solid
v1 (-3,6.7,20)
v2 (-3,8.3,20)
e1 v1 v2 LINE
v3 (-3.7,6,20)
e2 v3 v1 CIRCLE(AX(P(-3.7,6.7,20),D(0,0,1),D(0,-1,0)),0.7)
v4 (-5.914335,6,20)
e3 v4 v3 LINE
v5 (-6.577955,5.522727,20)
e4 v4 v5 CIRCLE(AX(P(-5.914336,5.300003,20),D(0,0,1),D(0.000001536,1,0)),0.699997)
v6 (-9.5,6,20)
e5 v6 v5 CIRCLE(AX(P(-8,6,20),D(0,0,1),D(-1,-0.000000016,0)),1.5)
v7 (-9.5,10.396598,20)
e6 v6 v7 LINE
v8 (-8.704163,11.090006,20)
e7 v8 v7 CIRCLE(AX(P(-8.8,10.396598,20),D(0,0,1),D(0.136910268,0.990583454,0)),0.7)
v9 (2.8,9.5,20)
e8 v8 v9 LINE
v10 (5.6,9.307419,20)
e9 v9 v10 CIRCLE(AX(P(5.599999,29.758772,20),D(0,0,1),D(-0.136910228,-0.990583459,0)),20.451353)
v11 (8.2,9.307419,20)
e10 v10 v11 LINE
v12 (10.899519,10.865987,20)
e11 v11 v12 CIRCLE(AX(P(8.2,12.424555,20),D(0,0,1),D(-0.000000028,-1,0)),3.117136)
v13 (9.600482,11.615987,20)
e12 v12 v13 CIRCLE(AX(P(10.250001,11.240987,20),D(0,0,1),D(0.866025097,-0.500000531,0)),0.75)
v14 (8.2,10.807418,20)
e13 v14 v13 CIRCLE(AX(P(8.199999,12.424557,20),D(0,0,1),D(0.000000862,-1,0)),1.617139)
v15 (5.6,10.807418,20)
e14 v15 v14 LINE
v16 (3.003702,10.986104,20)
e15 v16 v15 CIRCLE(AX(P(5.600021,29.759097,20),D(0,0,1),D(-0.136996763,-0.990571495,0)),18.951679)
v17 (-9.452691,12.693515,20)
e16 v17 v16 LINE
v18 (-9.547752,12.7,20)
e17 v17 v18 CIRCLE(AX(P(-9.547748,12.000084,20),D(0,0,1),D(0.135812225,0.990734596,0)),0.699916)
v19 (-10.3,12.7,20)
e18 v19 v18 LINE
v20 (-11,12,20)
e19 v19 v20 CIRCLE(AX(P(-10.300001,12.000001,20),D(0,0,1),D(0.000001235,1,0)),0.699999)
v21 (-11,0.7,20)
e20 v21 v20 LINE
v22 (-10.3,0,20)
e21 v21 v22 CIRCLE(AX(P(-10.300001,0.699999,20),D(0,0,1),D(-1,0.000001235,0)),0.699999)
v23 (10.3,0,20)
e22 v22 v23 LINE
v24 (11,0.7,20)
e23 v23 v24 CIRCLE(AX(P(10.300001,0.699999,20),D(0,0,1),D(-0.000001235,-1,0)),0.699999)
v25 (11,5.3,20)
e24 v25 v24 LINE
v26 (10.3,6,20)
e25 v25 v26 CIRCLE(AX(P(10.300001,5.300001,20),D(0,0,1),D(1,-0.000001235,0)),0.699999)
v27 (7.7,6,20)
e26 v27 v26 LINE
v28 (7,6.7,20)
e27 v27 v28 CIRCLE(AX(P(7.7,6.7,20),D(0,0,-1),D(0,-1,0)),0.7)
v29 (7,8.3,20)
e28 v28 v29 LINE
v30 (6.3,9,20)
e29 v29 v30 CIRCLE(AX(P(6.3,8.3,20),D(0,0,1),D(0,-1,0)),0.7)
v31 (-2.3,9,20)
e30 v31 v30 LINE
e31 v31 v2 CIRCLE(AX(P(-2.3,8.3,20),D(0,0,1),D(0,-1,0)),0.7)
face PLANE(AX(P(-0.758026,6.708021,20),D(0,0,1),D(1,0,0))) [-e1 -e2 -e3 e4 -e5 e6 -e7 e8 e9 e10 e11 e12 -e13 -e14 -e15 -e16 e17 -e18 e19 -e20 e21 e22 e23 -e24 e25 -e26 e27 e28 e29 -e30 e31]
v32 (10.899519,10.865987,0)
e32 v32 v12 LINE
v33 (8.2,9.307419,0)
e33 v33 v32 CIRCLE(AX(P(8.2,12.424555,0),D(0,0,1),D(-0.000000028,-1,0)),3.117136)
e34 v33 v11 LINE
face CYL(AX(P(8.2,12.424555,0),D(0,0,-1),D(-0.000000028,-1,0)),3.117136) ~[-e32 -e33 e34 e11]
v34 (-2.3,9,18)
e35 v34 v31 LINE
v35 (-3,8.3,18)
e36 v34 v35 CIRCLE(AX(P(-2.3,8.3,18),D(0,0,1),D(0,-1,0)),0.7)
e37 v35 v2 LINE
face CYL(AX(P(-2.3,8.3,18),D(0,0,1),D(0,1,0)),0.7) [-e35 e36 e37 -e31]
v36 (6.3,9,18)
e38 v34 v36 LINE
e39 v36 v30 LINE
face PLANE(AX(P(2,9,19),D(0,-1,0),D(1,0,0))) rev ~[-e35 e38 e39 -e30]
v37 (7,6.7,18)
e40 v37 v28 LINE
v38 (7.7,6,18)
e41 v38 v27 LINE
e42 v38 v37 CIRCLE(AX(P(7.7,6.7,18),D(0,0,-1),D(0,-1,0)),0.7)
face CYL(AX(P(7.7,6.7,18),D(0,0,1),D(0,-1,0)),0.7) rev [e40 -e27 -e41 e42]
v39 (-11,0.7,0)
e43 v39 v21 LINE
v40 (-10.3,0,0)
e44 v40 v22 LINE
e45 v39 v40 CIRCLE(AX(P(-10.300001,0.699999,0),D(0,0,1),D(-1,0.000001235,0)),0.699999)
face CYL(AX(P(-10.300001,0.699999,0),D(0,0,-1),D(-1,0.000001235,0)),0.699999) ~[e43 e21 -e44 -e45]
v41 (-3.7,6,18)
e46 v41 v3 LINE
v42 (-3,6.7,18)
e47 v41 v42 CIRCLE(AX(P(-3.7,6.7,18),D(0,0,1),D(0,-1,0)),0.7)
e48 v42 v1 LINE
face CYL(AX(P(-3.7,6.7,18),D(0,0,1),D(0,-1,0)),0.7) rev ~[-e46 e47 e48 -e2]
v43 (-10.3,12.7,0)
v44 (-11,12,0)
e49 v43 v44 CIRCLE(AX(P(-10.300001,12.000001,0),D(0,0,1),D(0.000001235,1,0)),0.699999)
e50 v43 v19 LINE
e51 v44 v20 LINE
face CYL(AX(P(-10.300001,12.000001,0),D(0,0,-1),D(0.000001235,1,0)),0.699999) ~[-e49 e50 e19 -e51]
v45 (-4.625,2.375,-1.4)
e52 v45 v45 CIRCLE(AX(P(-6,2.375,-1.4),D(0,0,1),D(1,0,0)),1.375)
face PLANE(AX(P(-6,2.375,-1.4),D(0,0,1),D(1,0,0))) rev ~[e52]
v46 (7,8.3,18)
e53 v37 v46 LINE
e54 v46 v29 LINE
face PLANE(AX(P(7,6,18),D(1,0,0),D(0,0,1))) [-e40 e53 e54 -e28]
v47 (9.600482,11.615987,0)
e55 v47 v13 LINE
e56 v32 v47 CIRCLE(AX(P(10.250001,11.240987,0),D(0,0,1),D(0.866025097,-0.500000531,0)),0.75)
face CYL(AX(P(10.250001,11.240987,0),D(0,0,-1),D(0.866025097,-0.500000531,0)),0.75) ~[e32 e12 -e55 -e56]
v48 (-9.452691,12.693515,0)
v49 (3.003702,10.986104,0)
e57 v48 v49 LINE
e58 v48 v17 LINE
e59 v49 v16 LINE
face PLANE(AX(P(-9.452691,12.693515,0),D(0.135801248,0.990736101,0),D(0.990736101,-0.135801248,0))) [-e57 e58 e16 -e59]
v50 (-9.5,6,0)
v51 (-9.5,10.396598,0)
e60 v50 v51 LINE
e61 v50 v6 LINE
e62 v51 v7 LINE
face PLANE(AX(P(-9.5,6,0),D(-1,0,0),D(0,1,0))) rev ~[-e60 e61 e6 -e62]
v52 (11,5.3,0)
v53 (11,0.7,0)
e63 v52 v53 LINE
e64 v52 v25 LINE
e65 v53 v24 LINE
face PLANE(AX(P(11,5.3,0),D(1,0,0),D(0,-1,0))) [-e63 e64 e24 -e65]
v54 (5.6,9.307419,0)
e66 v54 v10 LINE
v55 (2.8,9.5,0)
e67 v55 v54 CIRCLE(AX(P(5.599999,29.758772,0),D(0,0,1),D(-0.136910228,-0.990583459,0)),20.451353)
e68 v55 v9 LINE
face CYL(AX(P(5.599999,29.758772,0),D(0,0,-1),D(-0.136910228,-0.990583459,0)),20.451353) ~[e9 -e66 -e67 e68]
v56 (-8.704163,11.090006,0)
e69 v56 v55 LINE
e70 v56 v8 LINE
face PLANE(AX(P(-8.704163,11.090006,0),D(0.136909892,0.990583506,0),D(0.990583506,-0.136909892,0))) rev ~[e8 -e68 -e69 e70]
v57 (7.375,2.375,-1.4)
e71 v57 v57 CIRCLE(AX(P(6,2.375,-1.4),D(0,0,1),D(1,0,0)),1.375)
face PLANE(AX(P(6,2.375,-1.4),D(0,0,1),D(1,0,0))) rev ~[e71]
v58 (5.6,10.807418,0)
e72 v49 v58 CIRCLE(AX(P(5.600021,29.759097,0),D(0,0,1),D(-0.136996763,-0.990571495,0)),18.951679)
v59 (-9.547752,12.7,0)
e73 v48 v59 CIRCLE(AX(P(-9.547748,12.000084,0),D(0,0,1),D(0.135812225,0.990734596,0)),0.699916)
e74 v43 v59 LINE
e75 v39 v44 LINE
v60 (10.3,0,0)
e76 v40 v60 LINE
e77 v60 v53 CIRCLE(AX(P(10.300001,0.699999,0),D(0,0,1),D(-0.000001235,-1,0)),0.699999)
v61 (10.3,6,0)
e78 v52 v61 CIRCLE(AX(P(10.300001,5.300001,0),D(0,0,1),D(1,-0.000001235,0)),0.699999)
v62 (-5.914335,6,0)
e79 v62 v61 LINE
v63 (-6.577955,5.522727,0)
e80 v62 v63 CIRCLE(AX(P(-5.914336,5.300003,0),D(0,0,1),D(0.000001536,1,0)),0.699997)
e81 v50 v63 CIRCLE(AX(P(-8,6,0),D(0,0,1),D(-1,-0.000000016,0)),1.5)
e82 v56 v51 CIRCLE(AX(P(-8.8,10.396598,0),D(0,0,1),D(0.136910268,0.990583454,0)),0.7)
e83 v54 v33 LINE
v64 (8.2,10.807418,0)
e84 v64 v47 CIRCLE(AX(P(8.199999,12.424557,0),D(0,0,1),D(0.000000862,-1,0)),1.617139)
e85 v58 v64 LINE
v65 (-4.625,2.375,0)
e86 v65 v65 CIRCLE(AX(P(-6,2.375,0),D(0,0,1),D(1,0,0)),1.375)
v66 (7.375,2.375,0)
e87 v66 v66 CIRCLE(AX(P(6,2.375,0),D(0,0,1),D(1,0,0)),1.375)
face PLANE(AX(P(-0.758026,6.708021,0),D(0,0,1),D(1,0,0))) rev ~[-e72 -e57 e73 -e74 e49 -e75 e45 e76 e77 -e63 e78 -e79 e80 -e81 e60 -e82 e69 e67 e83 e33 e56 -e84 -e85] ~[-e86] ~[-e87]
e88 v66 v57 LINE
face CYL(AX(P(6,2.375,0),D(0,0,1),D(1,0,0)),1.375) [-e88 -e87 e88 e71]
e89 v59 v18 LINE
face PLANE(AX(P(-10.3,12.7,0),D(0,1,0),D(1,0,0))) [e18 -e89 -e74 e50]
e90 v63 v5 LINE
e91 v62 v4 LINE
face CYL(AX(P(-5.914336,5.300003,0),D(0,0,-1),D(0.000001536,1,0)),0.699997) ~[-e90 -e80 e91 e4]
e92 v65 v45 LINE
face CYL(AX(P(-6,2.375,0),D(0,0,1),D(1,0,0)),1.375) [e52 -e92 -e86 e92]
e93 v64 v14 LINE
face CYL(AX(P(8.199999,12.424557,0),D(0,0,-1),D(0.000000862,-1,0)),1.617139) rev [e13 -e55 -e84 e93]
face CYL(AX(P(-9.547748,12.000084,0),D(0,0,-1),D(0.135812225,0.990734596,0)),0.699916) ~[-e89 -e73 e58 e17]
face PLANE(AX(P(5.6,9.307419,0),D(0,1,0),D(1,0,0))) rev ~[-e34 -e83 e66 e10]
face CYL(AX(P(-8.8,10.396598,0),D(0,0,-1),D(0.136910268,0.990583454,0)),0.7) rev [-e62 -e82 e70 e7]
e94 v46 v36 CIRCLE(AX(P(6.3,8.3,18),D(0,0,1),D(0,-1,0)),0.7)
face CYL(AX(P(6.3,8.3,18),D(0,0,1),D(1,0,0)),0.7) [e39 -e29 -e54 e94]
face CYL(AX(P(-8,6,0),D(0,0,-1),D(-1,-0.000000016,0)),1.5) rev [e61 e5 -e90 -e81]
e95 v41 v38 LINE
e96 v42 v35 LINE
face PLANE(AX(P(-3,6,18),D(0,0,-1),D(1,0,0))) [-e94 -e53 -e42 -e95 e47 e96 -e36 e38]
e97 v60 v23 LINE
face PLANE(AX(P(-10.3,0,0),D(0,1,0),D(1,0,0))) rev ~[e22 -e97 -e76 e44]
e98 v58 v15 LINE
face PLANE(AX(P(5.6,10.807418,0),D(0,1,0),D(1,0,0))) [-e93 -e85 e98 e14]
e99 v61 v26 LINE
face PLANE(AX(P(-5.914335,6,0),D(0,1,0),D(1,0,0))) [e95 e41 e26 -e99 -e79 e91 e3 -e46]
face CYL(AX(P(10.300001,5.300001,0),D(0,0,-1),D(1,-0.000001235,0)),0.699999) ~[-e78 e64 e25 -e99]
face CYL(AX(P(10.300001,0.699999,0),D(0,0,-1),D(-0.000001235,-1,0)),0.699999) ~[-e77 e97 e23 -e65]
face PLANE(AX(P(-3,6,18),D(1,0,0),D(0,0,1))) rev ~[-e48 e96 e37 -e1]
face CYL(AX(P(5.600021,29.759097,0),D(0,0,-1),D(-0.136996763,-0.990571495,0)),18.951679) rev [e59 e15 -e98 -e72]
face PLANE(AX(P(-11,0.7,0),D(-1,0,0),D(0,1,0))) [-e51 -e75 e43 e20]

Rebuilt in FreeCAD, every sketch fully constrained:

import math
import FreeCAD as App
import Part
import Sketcher
from FreeCAD import Vector


def edges_at(feature, points):
    """Names of the edges that pass closest to the given points."""
    edges = feature.Shape.Edges
    near = lambda p: min(range(len(edges)), key=lambda i: edges[i].distToShape(Part.Vertex(*p))[0])
    return sorted({f"Edge{near(p) + 1}" for p in points})

doc = App.newDocument("Part")
body = doc.addObject("PartDesign::Body", "Body")

sketch1 = body.newObject("Sketcher::SketchObject", "Sketch")
sketch1.AttachmentSupport = (doc.getObject("XY_Plane"), [""])
sketch1.MapMode = "FlatFace"
sketch1.addGeometry(Part.LineSegment(Vector(-10.3, 0, 0), Vector(10.3, 0, 0)), False)
sketch1.addGeometry(Part.ArcOfCircle(Part.Circle(Vector(10.300001, 0.699999, 0), Vector(0, 0, 1), 0.699999), math.radians(-90.000071), math.radians(0.000071)), False)
sketch1.addGeometry(Part.LineSegment(Vector(11, 0.7, 0), Vector(11, 5.3, 0)), False)
sketch1.addGeometry(Part.ArcOfCircle(Part.Circle(Vector(10.300001, 5.300001, 0), Vector(0, 0, 1), 0.699999), math.radians(-0.000071), math.radians(90.000071)), False)
sketch1.addGeometry(Part.LineSegment(Vector(10.3, 6, 0), Vector(-5.914335, 6, 0)), False)
sketch1.addGeometry(Part.ArcOfCircle(Part.Circle(Vector(-5.914336, 5.300003, 0), Vector(0, 0, 1), 0.699997), math.radians(89.999912), math.radians(161.44718)), False)
sketch1.addGeometry(Part.ArcOfCircle(Part.Circle(Vector(-8, 6, 0), Vector(0, 0, 1), 1.5), math.radians(-179.999999), math.radians(-18.553013)), False)
sketch1.addGeometry(Part.LineSegment(Vector(-9.5, 6, 0), Vector(-9.5, 10.396598, 0)), False)
sketch1.addGeometry(Part.ArcOfCircle(Part.Circle(Vector(-8.8, 10.396598, 0), Vector(0, 0, 1), 0.7), math.radians(82.130904), math.radians(179.999979)), False)
sketch1.addGeometry(Part.LineSegment(Vector(-8.704163, 11.090006, 0), Vector(2.8, 9.5, 0)), False)
sketch1.addGeometry(Part.ArcOfCircle(Part.Circle(Vector(5.599999, 29.758772, 0), Vector(0, 0, 1), 20.451353), math.radians(-97.869094), math.radians(-89.999998)), False)
sketch1.addGeometry(Part.LineSegment(Vector(5.6, 9.307419, 0), Vector(8.2, 9.307419, 0)), False)
sketch1.addGeometry(Part.ArcOfCircle(Part.Circle(Vector(8.2, 12.424555, 0), Vector(0, 0, 1), 3.117136), math.radians(-90.000002), math.radians(-29.999999)), False)
sketch1.addGeometry(Part.ArcOfCircle(Part.Circle(Vector(10.250001, 11.240987, 0), Vector(0, 0, 1), 0.75), math.radians(-30.000035), math.radians(149.999993)), False)
sketch1.addGeometry(Part.ArcOfCircle(Part.Circle(Vector(8.199999, 12.424557, 0), Vector(0, 0, 1), 1.617139), math.radians(-89.999951), math.radians(-30.000029)), False)
sketch1.addGeometry(Part.LineSegment(Vector(8.2, 10.807418, 0), Vector(5.6, 10.807418, 0)), False)
sketch1.addGeometry(Part.ArcOfCircle(Part.Circle(Vector(5.600021, 29.759097, 0), Vector(0, 0, 1), 18.951679), math.radians(-97.874099), math.radians(-90.000063)), False)
sketch1.addGeometry(Part.LineSegment(Vector(3.003702, 10.986104, 0), Vector(-9.452691, 12.693515, 0)), False)
sketch1.addGeometry(Part.ArcOfCircle(Part.Circle(Vector(-9.547748, 12.000084, 0), Vector(0, 0, 1), 0.699916), math.radians(82.19441), math.radians(90.000321)), False)
sketch1.addGeometry(Part.LineSegment(Vector(-9.547752, 12.7, 0), Vector(-10.3, 12.7, 0)), False)
sketch1.addGeometry(Part.ArcOfCircle(Part.Circle(Vector(-10.300001, 12.000001, 0), Vector(0, 0, 1), 0.699999), math.radians(89.999929), math.radians(180.000071)), False)
sketch1.addGeometry(Part.LineSegment(Vector(-11, 12, 0), Vector(-11, 0.7, 0)), False)
sketch1.addGeometry(Part.ArcOfCircle(Part.Circle(Vector(-10.300001, 0.699999, 0), Vector(0, 0, 1), 0.699999), math.radians(179.999929), math.radians(270.000071)), False)
sketch1.addConstraint(Sketcher.Constraint("Coincident", 0, 2, 1, 1))
sketch1.addConstraint(Sketcher.Constraint("Coincident", 1, 2, 2, 1))
sketch1.addConstraint(Sketcher.Constraint("Coincident", 2, 2, 3, 1))
sketch1.addConstraint(Sketcher.Constraint("Coincident", 3, 2, 4, 1))
sketch1.addConstraint(Sketcher.Constraint("Coincident", 4, 2, 5, 1))
sketch1.addConstraint(Sketcher.Constraint("Coincident", 5, 2, 6, 2))
sketch1.addConstraint(Sketcher.Constraint("Coincident", 6, 1, 7, 1))
sketch1.addConstraint(Sketcher.Constraint("Coincident", 7, 2, 8, 2))
sketch1.addConstraint(Sketcher.Constraint("Coincident", 8, 1, 9, 1))
sketch1.addConstraint(Sketcher.Constraint("Coincident", 9, 2, 10, 1))
sketch1.addConstraint(Sketcher.Constraint("Coincident", 10, 2, 11, 1))
sketch1.addConstraint(Sketcher.Constraint("Coincident", 11, 2, 12, 1))
sketch1.addConstraint(Sketcher.Constraint("Coincident", 12, 2, 13, 1))
sketch1.addConstraint(Sketcher.Constraint("Coincident", 13, 2, 14, 2))
sketch1.addConstraint(Sketcher.Constraint("Coincident", 14, 1, 15, 1))
sketch1.addConstraint(Sketcher.Constraint("Coincident", 15, 2, 16, 2))
sketch1.addConstraint(Sketcher.Constraint("Coincident", 16, 1, 17, 1))
sketch1.addConstraint(Sketcher.Constraint("Coincident", 17, 2, 18, 1))
sketch1.addConstraint(Sketcher.Constraint("Coincident", 18, 2, 19, 1))
sketch1.addConstraint(Sketcher.Constraint("Coincident", 19, 2, 20, 1))
sketch1.addConstraint(Sketcher.Constraint("Coincident", 20, 2, 21, 1))
sketch1.addConstraint(Sketcher.Constraint("Coincident", 21, 2, 22, 1))
sketch1.addConstraint(Sketcher.Constraint("Coincident", 22, 2, 0, 1))
sketch1.addConstraint(Sketcher.Constraint("Horizontal", 0))
sketch1.addConstraint(Sketcher.Constraint("Vertical", 2))
sketch1.addConstraint(Sketcher.Constraint("Horizontal", 4))
sketch1.addConstraint(Sketcher.Constraint("Vertical", 7))
sketch1.addConstraint(Sketcher.Constraint("Horizontal", 11))
sketch1.addConstraint(Sketcher.Constraint("Horizontal", 15))
sketch1.addConstraint(Sketcher.Constraint("Horizontal", 19))
sketch1.addConstraint(Sketcher.Constraint("Vertical", 21))
sketch1.addConstraint(Sketcher.Constraint("Coincident", 14, 3, 12, 3))
sketch1.addConstraint(Sketcher.Constraint("PointOnObject", 0, 2, -1))
sketch1.addConstraint(Sketcher.Constraint("Radius", 1, 0.699999))
sketch1.addConstraint(Sketcher.Constraint("Radius", 3, 0.699999))
sketch1.addConstraint(Sketcher.Constraint("Radius", 6, 1.5))
sketch1.addConstraint(Sketcher.Constraint("Radius", 8, 0.7))
sketch1.addConstraint(Sketcher.Constraint("Radius", 20, 0.699999))
sketch1.addConstraint(Sketcher.Constraint("Radius", 22, 0.699999))
sketch1.addConstraint(Sketcher.Constraint("Radius", 13, 0.75))
sketch1.addConstraint(Sketcher.Constraint("DistanceX", 0, 1, 0, 2, 20.6))
sketch1.addConstraint(Sketcher.Constraint("DistanceX", 11, 1, 11, 2, 2.6))
sketch1.addConstraint(Sketcher.Constraint("DistanceX", 15, 2, 15, 1, 2.6))
sketch1.addConstraint(Sketcher.Constraint("DistanceY", 2, 1, 2, 2, 4.6))
sketch1.addConstraint(Sketcher.Constraint("DistanceY", 21, 2, 21, 1, 11.3))
sketch1.addConstraint(Sketcher.Constraint("DistanceX", 6, 3, -1, 1, 8.0))
sketch1.addConstraint(Sketcher.Constraint("DistanceY", -1, 1, 6, 3, 6.0))
sketch1.addConstraint(Sketcher.Constraint("DistanceY", -1, 1, 20, 3, 12.000001))
sketch1.addConstraint(Sketcher.Constraint("DistanceX", -1, 1, 1, 2, 11.0))
sketch1.addConstraint(Sketcher.Constraint("DistanceY", -1, 1, 3, 2, 6.0))
sketch1.addConstraint(Sketcher.Constraint("DistanceY", -1, 1, 6, 1, 6.0))
sketch1.addConstraint(Sketcher.Constraint("DistanceX", 20, 2, -1, 1, 11.0))
sketch1.addConstraint(Sketcher.Constraint("DistanceY", -1, 1, 20, 2, 12.0))
sketch1.addConstraint(Sketcher.Constraint("DistanceX", 8, 3, 12, 3, 17.0))
sketch1.addConstraint(Sketcher.Constraint("DistanceX", -1, 1, 10, 3, 5.599999))
sketch1.addConstraint(Sketcher.Constraint("DistanceX", -1, 1, 0, 2, 10.3))
sketch1.addConstraint(Sketcher.Constraint("DistanceY", -1, 1, 1, 2, 0.7))
sketch1.addConstraint(Sketcher.Constraint("DistanceX", -1, 1, 3, 2, 10.3))
sketch1.addConstraint(Sketcher.Constraint("DistanceX", -1, 1, 9, 2, 2.8))
sketch1.addConstraint(Sketcher.Constraint("DistanceY", -1, 1, 9, 2, 9.5))
sketch1.addConstraint(Sketcher.Constraint("DistanceX", -1, 1, 10, 2, 5.6))
sketch1.addConstraint(Sketcher.Constraint("DistanceX", -1, 1, 14, 1, 8.2))
sketch1.addConstraint(Sketcher.Constraint("DistanceX", 19, 2, -1, 1, 10.3))
sketch1.addConstraint(Sketcher.Constraint("DistanceY", 5, 3, 20, 3, 6.699998))
sketch1.addConstraint(Sketcher.Constraint("DistanceX", -1, 1, 13, 3, 10.250001))
sketch1.addConstraint(Sketcher.Constraint("Radius", 14, 1.617139))
sketch1.addConstraint(Sketcher.Constraint("Radius", 16, 18.951679))
sketch1.addConstraint(Sketcher.Constraint("DistanceY", 12, 2, 13, 2, 0.75))
sketch1.addConstraint(Sketcher.Constraint("Radius", 10, 20.451353))
sketch1.addConstraint(Sketcher.Constraint("Radius", 18, 0.699916))
sketch1.addConstraint(Sketcher.Constraint("DistanceY", 12, 2, 13, 3, 0.375))
sketch1.addConstraint(Sketcher.Constraint("DistanceX", 19, 2, 19, 1, 0.752248))
sketch1.addConstraint(Sketcher.Constraint("DistanceX", -1, 1, 16, 1, 3.003702))
sketch1.addConstraint(Sketcher.Constraint("DistanceY", 1, 3, 8, 3, 9.696599))
sketch1.addConstraint(Sketcher.Constraint("Distance", 9, 11.613522))
sketch1.addConstraint(Sketcher.Constraint("DistanceX", 4, 2, 4, 1, 16.214335))
sketch1.addConstraint(Sketcher.Constraint("DistanceY", 7, 1, 7, 2, 4.396598))
sketch1.addConstraint(Sketcher.Constraint("DistanceX", -1, 1, 16, 3, 5.600021))
sketch1.addConstraint(Sketcher.Constraint("DistanceX", 18, 3, -1, 1, 9.547748))
sketch1.addConstraint(Sketcher.Constraint("DistanceX", 17, 2, -1, 1, 9.452691))
sketch1.addConstraint(Sketcher.Constraint("DistanceX", 5, 2, 5, 3, 0.663619))
pad1 = body.newObject("PartDesign::Pad", "Pad")
pad1.Profile = sketch1
pad1.Length = 20

sketch2 = body.newObject("Sketcher::SketchObject", "Sketch001")
sketch2.AttachmentSupport = (doc.getObject("XZ_Plane"), [""])
sketch2.MapMode = "FlatFace"
sketch2.AttachmentOffset = App.Placement(Vector(0, 0, -6), App.Rotation())
sketch2.addGeometry(Part.LineSegment(Vector(-3, 20, 0), Vector(-3, 18, 0)), False)
sketch2.addGeometry(Part.LineSegment(Vector(-3, 18, 0), Vector(7, 18, 0)), False)
sketch2.addGeometry(Part.LineSegment(Vector(7, 18, 0), Vector(7, 20, 0)), False)
sketch2.addGeometry(Part.LineSegment(Vector(7, 20, 0), Vector(-3, 20, 0)), False)
sketch2.addConstraint(Sketcher.Constraint("Coincident", 0, 2, 1, 1))
sketch2.addConstraint(Sketcher.Constraint("Coincident", 1, 2, 2, 1))
sketch2.addConstraint(Sketcher.Constraint("Coincident", 2, 2, 3, 1))
sketch2.addConstraint(Sketcher.Constraint("Coincident", 3, 2, 0, 1))
sketch2.addConstraint(Sketcher.Constraint("Vertical", 0))
sketch2.addConstraint(Sketcher.Constraint("Horizontal", 1))
sketch2.addConstraint(Sketcher.Constraint("Vertical", 2))
sketch2.addConstraint(Sketcher.Constraint("Horizontal", 3))
sketch2.addConstraint(Sketcher.Constraint("DistanceX", 1, 1, 1, 2, 10.0))
sketch2.addConstraint(Sketcher.Constraint("DistanceY", 0, 2, 0, 1, 2.0))
sketch2.addConstraint(Sketcher.Constraint("DistanceX", 0, 2, -1, 1, 3.0))
sketch2.addConstraint(Sketcher.Constraint("DistanceY", -1, 1, 0, 2, 18.0))
pad2 = body.newObject("PartDesign::Pad", "Pad001")
pad2.Profile = sketch2
pad2.Length = 3
pad2.Reversed = True

sketch3 = body.newObject("Sketcher::SketchObject", "Sketch002")
sketch3.AttachmentSupport = (doc.getObject("XY_Plane"), [""])
sketch3.MapMode = "FlatFace"
sketch3.addGeometry(Part.Circle(Vector(6, 2.375, 0), Vector(0, 0, 1), 1.375), False)
sketch3.addGeometry(Part.Circle(Vector(-6, 2.375, 0), Vector(0, 0, 1), 1.375), False)
sketch3.addConstraint(Sketcher.Constraint("Equal", 0, 1))
sketch3.addConstraint(Sketcher.Constraint("Symmetric", 0, 3, 1, 3, -2))
sketch3.addConstraint(Sketcher.Constraint("Diameter", 0, 2.75))
sketch3.addConstraint(Sketcher.Constraint("DistanceX", -1, 1, 0, 3, 6.0))
sketch3.addConstraint(Sketcher.Constraint("DistanceY", -1, 1, 0, 3, 2.375))
pad3 = body.newObject("PartDesign::Pad", "Pad002")
pad3.Profile = sketch3
pad3.Length = 1.4
pad3.Reversed = True
doc.recompute()

fillet = body.newObject("PartDesign::Fillet", "Fillet")
fillet.Base = (pad3, edges_at(pad3, [
    (-3, 9, 19),
    (-3, 6, 19),
    (7, 9, 19),
    (7, 6, 19),
]))
fillet.Radius = 0.7

doc.recompute()
